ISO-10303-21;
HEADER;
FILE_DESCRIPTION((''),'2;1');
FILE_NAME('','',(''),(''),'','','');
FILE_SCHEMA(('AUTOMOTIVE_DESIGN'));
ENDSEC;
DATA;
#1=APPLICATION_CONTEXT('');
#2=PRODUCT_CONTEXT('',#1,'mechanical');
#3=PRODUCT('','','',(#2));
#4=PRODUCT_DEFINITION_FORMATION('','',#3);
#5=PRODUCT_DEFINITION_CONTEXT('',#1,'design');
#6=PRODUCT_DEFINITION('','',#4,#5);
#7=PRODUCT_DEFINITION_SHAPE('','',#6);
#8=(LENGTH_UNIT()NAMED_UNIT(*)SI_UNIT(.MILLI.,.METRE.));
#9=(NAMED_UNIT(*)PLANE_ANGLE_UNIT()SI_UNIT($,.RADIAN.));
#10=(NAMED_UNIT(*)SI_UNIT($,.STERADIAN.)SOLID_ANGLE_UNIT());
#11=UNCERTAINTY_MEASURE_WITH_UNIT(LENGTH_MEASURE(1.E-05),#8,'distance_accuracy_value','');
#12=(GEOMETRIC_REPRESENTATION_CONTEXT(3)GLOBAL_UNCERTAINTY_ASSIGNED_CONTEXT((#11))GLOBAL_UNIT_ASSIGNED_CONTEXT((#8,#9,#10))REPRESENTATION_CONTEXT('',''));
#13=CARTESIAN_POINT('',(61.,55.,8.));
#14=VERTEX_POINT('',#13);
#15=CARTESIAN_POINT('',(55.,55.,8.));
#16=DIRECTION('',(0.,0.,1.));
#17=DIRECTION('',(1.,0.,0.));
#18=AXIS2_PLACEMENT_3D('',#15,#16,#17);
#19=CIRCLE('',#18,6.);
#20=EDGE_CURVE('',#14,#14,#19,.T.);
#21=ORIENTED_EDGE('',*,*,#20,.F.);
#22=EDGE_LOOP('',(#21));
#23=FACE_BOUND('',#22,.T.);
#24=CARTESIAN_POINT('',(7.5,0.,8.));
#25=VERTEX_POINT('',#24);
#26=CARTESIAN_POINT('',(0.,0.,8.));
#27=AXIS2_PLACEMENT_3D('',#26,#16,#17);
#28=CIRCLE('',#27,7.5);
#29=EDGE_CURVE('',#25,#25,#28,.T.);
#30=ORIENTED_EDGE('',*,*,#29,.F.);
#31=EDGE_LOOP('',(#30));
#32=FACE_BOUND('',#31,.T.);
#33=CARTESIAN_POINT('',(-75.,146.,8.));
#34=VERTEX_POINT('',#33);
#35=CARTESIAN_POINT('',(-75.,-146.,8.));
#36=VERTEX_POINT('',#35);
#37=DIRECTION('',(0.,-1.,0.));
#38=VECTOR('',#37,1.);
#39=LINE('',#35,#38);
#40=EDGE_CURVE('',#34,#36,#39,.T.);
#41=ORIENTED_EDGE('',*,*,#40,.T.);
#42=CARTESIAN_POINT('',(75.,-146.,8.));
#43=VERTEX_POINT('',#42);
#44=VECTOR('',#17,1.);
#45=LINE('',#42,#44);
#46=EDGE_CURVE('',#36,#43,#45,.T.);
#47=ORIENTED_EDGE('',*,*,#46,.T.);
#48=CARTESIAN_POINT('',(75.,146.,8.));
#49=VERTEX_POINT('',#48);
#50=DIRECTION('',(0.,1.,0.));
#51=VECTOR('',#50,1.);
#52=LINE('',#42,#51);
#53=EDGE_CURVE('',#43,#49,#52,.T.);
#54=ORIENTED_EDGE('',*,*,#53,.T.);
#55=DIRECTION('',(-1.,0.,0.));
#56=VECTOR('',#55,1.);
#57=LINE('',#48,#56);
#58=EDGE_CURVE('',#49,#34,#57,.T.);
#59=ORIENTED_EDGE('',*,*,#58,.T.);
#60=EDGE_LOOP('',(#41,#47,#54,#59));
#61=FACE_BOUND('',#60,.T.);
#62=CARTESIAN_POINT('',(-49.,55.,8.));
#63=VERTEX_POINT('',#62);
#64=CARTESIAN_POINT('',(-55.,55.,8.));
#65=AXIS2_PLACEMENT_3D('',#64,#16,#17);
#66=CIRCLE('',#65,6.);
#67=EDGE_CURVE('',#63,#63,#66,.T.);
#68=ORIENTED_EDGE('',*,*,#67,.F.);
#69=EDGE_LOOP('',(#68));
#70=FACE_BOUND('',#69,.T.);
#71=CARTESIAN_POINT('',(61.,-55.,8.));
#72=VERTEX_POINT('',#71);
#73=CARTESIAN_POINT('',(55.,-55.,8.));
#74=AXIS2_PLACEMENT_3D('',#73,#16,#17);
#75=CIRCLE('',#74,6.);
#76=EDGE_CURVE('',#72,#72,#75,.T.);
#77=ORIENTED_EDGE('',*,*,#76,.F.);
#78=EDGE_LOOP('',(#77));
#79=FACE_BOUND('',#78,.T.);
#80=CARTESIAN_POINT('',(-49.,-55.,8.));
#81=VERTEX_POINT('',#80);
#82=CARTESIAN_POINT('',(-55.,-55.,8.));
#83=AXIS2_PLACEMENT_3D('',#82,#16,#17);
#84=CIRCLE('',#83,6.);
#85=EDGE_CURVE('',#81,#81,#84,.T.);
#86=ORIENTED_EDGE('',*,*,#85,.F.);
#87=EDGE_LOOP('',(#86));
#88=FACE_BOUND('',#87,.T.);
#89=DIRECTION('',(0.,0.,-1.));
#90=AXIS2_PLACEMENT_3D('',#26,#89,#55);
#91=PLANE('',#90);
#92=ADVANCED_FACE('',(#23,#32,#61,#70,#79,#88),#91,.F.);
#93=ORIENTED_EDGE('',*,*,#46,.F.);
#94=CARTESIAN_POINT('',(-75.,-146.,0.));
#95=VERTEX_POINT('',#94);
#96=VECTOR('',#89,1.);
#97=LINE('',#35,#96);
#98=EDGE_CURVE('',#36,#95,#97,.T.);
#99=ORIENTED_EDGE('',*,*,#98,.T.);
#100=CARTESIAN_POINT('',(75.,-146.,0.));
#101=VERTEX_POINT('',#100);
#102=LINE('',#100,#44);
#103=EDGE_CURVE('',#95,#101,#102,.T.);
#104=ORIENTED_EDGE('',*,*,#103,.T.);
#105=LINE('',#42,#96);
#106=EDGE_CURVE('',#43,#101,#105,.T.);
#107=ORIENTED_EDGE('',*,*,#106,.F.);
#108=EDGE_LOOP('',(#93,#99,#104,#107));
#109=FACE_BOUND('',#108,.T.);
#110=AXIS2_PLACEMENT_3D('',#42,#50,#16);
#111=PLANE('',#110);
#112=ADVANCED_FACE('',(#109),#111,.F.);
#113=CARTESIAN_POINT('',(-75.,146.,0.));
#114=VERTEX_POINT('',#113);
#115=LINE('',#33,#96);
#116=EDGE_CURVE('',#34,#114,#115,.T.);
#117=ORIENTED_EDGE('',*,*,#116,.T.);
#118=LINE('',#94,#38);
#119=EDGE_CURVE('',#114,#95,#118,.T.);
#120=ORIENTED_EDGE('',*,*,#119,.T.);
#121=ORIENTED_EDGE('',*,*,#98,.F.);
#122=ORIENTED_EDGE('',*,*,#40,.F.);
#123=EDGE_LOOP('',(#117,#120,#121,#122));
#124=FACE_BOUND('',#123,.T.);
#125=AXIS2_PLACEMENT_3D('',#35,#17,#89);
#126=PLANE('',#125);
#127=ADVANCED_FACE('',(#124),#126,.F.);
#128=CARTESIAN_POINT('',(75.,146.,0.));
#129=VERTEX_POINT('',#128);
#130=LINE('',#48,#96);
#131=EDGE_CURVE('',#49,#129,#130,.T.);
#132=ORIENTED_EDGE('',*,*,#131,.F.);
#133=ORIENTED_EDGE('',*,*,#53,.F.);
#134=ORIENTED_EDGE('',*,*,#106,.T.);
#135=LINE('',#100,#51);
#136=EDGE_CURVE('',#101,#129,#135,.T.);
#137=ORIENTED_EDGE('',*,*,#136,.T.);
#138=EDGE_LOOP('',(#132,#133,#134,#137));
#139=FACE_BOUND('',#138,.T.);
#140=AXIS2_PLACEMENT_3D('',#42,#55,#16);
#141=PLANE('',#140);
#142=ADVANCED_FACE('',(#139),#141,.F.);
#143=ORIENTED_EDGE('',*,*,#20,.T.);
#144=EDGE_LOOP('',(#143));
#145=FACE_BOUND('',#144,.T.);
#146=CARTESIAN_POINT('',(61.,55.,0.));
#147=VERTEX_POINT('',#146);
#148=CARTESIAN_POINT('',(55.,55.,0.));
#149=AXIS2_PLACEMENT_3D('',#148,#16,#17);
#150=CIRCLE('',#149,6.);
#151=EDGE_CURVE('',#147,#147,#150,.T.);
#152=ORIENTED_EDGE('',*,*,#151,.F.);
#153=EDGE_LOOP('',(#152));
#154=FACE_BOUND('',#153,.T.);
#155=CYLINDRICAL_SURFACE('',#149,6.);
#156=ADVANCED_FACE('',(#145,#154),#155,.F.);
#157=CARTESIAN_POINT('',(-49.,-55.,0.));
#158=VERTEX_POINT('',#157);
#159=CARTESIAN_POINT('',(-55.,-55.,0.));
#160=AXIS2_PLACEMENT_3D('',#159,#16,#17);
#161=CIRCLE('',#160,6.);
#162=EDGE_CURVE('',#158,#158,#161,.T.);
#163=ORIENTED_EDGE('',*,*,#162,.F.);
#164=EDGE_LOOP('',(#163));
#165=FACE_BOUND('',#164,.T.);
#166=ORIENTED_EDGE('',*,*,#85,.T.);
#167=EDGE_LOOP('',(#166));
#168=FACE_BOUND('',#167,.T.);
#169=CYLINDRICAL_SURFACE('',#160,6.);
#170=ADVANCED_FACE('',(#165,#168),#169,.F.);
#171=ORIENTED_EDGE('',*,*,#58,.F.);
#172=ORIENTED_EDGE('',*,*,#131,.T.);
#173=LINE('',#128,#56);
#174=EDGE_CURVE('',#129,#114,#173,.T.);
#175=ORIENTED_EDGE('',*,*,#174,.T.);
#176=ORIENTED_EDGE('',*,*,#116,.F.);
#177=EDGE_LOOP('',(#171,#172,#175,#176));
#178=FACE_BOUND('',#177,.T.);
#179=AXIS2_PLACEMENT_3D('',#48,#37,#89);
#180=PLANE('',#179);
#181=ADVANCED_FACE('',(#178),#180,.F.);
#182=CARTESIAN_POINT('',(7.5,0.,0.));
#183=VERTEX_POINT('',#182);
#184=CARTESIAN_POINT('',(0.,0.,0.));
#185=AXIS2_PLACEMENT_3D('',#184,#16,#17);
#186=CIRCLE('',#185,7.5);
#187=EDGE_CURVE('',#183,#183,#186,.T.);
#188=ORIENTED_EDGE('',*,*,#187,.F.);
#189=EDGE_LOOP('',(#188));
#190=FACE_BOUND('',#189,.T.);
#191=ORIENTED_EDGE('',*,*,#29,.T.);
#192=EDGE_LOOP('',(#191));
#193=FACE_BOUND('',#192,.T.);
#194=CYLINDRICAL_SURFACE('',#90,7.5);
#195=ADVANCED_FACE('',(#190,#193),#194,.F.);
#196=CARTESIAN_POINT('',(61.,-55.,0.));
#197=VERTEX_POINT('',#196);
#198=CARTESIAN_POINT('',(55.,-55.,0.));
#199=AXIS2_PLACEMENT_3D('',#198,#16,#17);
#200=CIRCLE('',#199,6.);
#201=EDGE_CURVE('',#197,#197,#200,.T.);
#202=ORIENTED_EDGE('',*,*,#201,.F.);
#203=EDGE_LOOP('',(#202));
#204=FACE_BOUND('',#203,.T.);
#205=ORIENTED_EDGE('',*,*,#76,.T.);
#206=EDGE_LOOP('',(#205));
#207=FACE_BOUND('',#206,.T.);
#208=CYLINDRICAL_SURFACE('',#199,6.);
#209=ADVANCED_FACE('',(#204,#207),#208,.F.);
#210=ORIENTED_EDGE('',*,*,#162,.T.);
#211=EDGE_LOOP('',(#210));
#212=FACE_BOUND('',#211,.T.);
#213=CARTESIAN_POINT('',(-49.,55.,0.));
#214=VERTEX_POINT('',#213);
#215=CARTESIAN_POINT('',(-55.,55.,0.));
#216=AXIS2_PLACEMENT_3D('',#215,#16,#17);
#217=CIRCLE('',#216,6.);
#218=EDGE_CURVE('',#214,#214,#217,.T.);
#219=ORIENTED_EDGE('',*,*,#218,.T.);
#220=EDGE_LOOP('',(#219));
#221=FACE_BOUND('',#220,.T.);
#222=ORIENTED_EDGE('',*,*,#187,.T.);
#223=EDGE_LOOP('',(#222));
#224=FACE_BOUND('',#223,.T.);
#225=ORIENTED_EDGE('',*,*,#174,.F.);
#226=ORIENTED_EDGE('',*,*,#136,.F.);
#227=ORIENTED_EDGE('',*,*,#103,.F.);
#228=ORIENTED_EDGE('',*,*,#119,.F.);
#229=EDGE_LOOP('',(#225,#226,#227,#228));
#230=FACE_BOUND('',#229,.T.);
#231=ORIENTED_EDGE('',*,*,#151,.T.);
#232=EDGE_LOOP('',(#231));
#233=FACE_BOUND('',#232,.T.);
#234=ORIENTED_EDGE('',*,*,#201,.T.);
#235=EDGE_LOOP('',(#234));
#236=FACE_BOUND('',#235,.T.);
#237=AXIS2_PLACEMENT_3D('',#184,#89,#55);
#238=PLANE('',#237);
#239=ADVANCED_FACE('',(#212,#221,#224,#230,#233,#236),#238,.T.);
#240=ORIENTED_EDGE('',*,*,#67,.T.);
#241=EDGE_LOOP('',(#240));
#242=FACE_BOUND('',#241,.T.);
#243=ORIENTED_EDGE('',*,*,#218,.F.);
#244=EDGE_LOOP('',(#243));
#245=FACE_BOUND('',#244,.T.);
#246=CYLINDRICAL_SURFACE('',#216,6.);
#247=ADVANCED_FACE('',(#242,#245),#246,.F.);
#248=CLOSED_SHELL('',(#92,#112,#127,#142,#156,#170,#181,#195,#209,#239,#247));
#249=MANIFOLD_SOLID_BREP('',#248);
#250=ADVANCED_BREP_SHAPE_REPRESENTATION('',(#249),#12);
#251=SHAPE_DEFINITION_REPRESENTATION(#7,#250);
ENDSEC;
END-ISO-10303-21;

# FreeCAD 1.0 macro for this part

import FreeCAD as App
import Part
import Sketcher
from FreeCAD import Vector

doc = App.newDocument("Part")
body = doc.addObject("PartDesign::Body", "Body")

# Sketch on XY plane
sketch1 = body.newObject("Sketcher::SketchObject", "Sketch")
sketch1.AttachmentSupport = (doc.getObject("XY_Plane"), [""])
sketch1.MapMode = "FlatFace"
sketch1.addGeometry([
    Part.LineSegment(Vector(-75, -146, 0), Vector(75, -146, 0)),
    Part.LineSegment(Vector(75, -146, 0), Vector(75, 146, 0)),
    Part.LineSegment(Vector(75, 146, 0), Vector(-75, 146, 0)),
    Part.LineSegment(Vector(-75, 146, 0), Vector(-75, -146, 0)),
], False)
sketch1.addConstraint([
    Sketcher.Constraint("Coincident", 0, 2, 1, 1),
    Sketcher.Constraint("Coincident", 1, 2, 2, 1),
    Sketcher.Constraint("Coincident", 2, 2, 3, 1),
    Sketcher.Constraint("Coincident", 3, 2, 0, 1),
    Sketcher.Constraint("Horizontal", 0),
    Sketcher.Constraint("Vertical", 1),
    Sketcher.Constraint("Horizontal", 2),
    Sketcher.Constraint("Vertical", 3),
    Sketcher.Constraint("Symmetric", 0, 2, 2, 2, -1, 1),
    Sketcher.Constraint("DistanceX", 0, 1, 0, 2, 150.0),
    Sketcher.Constraint("DistanceY", 1, 1, 1, 2, 292.0),
])
pad1 = body.newObject("PartDesign::Pad", "Pad")
pad1.Profile = sketch1
pad1.Length = 8

# Sketch on XY plane
sketch2 = body.newObject("Sketcher::SketchObject", "Sketch001")
sketch2.AttachmentSupport = (doc.getObject("XY_Plane"), [""])
sketch2.MapMode = "FlatFace"
sketch2.AttachmentOffset = App.Placement(Vector(0, 0, 8), App.Rotation())
sketch2.addGeometry([
    Part.Circle(Vector(-55, 55, 0), Vector(0, 0, 1), 6),
    Part.Circle(Vector(55, 55, 0), Vector(0, 0, 1), 6),
    Part.Circle(Vector(-55, -55, 0), Vector(0, 0, 1), 6),
    Part.Circle(Vector(55, -55, 0), Vector(0, 0, 1), 6),
], False)
sketch2.addConstraint([
    Sketcher.Constraint("Equal", 0, 1),
    Sketcher.Constraint("Equal", 1, 2),
    Sketcher.Constraint("Equal", 2, 3),
    Sketcher.Constraint("Symmetric", 1, 3, 2, 3, -1, 1),
    Sketcher.Constraint("Symmetric", 0, 3, 3, 3, -1, 1),
    Sketcher.Constraint("Symmetric", 0, 3, 1, 3, -2),
    Sketcher.Constraint("Diameter", 0, 12.0),
    Sketcher.Constraint("DistanceX", 0, 3, -1, 1, 55.0),
    Sketcher.Constraint("DistanceY", -1, 1, 0, 3, 55.0),
])
pocket1 = body.newObject("PartDesign::Pocket", "Pocket")
pocket1.Profile = sketch2
pocket1.Type = "ThroughAll"

# Sketch on XY plane
sketch3 = body.newObject("Sketcher::SketchObject", "Sketch002")
sketch3.AttachmentSupport = (doc.getObject("XY_Plane"), [""])
sketch3.MapMode = "FlatFace"
sketch3.addGeometry(Part.Circle(Vector(0, 0, 0), Vector(0, 0, 1), 8), False)
sketch3.addConstraint([
    Sketcher.Constraint("Coincident", 0, 3, -1, 1),
    Sketcher.Constraint("Diameter", 0, 15.0),
])
pocket2 = body.newObject("PartDesign::Pocket", "Pocket001")
pocket2.Profile = sketch3
pocket2.Type = "ThroughAll"
pocket2.Reversed = True

doc.recompute()
